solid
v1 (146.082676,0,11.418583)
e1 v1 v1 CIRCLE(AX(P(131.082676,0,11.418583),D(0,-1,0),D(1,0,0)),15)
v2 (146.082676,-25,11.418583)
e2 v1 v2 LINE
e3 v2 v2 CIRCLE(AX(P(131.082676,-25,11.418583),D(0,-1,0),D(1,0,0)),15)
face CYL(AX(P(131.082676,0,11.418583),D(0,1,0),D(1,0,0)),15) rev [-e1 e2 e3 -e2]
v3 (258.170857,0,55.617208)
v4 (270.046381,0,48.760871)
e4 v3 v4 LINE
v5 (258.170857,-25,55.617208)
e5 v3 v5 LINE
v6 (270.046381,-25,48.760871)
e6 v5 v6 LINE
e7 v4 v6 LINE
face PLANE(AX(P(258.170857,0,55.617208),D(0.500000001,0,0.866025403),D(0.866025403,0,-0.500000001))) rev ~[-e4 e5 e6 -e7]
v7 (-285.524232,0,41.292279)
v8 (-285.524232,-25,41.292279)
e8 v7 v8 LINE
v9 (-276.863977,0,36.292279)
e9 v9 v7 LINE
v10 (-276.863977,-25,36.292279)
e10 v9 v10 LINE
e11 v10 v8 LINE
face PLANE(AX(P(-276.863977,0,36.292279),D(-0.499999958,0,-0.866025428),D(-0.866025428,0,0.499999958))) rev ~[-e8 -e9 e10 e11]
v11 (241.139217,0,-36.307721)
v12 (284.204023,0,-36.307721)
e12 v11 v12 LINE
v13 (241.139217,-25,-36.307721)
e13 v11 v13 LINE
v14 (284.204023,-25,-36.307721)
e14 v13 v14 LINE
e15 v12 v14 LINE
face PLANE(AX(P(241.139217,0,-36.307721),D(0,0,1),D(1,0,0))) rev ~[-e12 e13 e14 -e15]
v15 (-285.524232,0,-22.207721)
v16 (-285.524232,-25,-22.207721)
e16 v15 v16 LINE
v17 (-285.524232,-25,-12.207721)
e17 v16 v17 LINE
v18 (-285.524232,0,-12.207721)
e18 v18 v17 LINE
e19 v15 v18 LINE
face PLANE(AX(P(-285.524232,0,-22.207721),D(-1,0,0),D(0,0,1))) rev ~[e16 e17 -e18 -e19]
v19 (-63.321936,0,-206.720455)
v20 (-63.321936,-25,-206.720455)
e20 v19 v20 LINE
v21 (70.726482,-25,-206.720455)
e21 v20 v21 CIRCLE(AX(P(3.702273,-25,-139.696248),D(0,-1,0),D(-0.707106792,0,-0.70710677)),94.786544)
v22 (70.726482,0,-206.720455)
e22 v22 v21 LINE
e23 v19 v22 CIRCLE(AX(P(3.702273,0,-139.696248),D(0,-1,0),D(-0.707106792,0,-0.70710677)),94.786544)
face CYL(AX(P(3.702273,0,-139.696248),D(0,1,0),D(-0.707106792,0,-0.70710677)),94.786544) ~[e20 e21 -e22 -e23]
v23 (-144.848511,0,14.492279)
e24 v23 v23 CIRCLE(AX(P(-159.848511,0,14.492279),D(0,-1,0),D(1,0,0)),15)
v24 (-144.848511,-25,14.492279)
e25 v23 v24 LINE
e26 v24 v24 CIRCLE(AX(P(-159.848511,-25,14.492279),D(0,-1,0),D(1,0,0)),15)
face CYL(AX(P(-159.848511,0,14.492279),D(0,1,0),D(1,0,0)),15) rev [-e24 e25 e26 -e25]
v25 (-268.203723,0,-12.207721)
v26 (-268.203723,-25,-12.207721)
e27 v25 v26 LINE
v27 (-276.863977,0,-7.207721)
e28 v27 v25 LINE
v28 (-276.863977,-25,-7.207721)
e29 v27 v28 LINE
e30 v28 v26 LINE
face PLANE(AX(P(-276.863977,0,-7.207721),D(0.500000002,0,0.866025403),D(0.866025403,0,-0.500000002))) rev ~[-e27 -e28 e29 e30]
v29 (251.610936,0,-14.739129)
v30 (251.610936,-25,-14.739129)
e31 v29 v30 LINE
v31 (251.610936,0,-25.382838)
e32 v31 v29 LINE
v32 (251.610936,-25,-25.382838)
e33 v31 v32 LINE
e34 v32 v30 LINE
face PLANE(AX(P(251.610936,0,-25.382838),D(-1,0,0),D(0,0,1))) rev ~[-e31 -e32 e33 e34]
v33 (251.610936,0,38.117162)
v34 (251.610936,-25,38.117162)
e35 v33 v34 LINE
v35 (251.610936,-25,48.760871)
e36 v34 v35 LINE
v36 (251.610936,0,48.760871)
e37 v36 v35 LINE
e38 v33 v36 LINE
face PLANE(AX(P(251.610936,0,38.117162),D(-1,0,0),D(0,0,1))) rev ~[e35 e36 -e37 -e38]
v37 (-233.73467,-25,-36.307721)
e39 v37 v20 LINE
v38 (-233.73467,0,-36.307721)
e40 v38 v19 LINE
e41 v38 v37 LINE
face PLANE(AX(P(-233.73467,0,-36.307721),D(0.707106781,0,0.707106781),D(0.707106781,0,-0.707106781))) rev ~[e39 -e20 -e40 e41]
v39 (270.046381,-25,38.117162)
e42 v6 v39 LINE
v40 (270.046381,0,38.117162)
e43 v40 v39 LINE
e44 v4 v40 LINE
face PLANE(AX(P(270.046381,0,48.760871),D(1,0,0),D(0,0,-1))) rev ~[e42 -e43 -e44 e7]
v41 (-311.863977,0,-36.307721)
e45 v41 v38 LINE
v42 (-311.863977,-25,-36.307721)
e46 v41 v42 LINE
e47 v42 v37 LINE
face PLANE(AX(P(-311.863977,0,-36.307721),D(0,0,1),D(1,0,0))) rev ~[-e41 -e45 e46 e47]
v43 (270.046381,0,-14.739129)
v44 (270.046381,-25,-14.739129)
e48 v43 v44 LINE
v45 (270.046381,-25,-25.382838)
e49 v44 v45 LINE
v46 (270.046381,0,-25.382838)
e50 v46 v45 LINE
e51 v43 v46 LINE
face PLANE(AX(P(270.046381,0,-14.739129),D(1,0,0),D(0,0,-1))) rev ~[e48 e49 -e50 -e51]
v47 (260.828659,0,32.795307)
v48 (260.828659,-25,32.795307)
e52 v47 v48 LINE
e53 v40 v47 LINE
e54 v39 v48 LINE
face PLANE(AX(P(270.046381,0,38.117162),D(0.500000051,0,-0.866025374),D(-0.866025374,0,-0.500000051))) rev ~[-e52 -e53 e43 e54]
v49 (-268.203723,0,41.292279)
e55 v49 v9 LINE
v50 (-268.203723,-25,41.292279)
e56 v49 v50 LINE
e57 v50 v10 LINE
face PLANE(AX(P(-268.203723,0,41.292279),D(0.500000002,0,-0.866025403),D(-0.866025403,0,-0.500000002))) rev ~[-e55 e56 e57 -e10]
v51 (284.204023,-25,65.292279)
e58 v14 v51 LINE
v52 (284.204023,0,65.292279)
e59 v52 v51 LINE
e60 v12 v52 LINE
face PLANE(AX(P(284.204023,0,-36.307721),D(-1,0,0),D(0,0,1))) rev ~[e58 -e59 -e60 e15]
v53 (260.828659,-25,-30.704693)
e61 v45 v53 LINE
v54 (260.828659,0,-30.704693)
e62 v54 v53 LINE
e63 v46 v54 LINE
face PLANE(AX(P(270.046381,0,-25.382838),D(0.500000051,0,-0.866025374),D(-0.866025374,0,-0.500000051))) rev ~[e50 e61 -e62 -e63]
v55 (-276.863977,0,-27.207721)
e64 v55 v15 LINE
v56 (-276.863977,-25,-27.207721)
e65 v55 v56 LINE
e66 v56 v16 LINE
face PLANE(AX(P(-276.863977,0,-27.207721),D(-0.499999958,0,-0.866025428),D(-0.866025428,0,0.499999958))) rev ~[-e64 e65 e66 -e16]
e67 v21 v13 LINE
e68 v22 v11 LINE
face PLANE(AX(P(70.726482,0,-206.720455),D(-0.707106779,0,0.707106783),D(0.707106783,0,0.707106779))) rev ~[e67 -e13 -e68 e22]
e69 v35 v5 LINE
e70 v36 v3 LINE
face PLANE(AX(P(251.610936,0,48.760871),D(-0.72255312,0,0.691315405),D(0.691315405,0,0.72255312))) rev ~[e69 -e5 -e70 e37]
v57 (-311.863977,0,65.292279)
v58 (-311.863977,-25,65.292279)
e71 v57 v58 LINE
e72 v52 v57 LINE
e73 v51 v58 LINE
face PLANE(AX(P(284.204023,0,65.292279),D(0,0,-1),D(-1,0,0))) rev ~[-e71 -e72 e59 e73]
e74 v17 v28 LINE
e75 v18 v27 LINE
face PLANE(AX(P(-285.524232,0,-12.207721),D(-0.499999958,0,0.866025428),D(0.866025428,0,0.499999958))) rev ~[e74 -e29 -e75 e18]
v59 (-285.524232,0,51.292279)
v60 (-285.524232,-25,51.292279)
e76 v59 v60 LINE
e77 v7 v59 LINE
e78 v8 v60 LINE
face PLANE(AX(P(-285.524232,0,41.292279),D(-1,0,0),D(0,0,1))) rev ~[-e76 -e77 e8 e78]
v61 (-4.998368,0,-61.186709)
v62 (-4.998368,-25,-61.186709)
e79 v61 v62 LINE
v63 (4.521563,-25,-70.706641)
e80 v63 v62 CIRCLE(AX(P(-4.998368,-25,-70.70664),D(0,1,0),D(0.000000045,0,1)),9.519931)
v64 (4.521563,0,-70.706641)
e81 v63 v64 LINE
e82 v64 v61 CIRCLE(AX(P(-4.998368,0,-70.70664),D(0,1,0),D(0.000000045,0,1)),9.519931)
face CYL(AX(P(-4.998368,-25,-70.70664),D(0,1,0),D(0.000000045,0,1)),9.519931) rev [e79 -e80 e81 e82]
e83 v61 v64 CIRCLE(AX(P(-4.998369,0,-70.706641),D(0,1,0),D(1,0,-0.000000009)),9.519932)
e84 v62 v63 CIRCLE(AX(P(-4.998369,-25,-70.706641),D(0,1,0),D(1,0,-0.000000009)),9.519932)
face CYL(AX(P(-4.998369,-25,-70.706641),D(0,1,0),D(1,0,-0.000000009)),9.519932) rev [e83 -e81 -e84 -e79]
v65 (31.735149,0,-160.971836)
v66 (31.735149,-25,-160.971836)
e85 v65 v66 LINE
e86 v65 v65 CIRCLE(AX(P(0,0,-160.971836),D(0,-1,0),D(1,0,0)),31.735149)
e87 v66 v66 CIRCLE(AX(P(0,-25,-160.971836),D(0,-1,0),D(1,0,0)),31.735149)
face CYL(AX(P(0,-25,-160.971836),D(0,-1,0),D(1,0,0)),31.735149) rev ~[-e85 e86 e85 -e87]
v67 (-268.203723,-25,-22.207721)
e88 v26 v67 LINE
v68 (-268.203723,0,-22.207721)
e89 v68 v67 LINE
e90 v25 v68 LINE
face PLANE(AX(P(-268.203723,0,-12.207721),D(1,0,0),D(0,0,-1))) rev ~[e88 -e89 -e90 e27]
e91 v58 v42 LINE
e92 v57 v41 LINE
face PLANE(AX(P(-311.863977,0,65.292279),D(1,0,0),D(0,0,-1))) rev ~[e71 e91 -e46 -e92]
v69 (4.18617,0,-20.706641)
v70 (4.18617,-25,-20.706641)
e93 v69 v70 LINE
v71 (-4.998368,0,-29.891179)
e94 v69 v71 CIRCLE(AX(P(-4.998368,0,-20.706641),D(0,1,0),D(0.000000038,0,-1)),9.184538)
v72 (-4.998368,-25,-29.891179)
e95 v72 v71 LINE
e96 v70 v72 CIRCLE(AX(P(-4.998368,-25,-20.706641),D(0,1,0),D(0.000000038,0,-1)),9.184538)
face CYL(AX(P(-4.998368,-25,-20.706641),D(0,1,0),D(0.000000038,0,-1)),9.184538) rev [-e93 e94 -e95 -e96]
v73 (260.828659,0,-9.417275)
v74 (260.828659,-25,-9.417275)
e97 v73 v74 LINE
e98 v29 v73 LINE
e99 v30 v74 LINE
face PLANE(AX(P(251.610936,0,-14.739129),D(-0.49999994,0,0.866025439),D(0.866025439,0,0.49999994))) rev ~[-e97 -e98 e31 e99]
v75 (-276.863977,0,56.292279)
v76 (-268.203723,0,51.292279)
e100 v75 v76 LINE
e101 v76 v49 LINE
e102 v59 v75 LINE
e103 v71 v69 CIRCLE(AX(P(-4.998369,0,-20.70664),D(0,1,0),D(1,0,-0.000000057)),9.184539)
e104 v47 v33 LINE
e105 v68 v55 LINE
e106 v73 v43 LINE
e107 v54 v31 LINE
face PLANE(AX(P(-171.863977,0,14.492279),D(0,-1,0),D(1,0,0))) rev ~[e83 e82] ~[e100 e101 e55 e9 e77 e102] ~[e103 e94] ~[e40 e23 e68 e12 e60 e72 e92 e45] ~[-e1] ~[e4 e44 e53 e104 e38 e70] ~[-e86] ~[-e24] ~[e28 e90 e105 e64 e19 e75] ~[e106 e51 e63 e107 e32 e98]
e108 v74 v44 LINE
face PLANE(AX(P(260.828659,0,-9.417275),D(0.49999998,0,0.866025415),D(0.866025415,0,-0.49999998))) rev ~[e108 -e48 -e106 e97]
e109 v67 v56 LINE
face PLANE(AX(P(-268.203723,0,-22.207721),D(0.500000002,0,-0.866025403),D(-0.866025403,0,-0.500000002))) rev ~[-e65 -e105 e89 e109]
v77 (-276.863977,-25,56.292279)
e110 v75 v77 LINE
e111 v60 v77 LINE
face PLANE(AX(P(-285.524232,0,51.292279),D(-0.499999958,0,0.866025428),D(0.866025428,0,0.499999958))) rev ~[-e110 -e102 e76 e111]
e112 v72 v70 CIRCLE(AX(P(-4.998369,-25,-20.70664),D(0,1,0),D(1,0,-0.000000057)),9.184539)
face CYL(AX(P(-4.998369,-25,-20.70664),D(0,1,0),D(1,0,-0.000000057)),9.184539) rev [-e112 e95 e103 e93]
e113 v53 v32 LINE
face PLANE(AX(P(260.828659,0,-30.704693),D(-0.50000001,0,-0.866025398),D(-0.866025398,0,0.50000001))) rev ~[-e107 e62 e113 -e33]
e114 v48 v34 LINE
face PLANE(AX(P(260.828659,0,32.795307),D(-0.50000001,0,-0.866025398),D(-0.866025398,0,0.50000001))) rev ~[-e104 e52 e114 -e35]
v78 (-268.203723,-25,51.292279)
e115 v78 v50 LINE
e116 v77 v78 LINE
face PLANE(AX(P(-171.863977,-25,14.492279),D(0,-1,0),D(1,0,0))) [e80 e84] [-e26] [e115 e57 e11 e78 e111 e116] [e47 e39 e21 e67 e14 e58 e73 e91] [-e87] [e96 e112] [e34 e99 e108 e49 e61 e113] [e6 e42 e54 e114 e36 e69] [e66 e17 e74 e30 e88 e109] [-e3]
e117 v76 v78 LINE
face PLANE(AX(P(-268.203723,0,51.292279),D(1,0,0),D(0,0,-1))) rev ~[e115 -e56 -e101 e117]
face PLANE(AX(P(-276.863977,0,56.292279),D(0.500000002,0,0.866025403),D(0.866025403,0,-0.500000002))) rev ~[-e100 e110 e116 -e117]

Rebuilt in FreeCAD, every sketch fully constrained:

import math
import FreeCAD as App
import Part
import Sketcher

V = App.Vector
Q = App.Units.Quantity


def add_polygon(sketch, points):
    """Adds a closed chain of lines whose ends are joined by coincident constraints."""
    first, n = sketch.GeometryCount, len(points)
    for a, b in zip(points, points[1:] + points[:1]):
        sketch.addGeometry(Part.LineSegment(App.Vector(*a, 0), App.Vector(*b, 0)), False)
    for i in range(n):
        sketch.addConstraint(Sketcher.Constraint("Coincident", first + i, 2, first + (i + 1) % n, 1))

doc = App.newDocument("Part")
body = doc.addObject("PartDesign::Body", "Body")

# Sketch on XZ plane
sketch1 = body.newObject("Sketcher::SketchObject", "Sketch")
sketch1.AttachmentSupport = (doc.getObject("XZ_Plane"), [""])
sketch1.MapMode = "FlatFace"
sketch1.addGeometry(Part.LineSegment(V(-312, 65, 0), V(-312, -36, 0)), False)  # 0
sketch1.addGeometry(Part.LineSegment(V(-312, -36, 0), V(-234, -36, 0)), False)  # 1
sketch1.addGeometry(Part.LineSegment(V(-234, -36, 0), V(-63, -207, 0)), False)  # 2
sketch1.addGeometry(Part.ArcOfCircle(Part.Circle(V(4, -140, 0), V(0, 0, 1), 95), math.radians(-135), math.radians(-45)), False)  # 3
sketch1.addGeometry(Part.LineSegment(V(71, -207, 0), V(241, -36, 0)), False)  # 4
sketch1.addGeometry(Part.LineSegment(V(241, -36, 0), V(284, -36, 0)), False)  # 5
sketch1.addGeometry(Part.LineSegment(V(284, -36, 0), V(284, 65, 0)), False)  # 6
sketch1.addGeometry(Part.LineSegment(V(284, 65, 0), V(-312, 65, 0)), False)  # 7
add_polygon(sketch1, [(-286, -12), (-277, -7), (-268, -12), (-268, -22), (-277, -27), (-286, -22)])  # lines 8-13
add_polygon(sketch1, [(261, -9), (270, -15), (270, -25), (261, -31), (252, -25), (252, -15)])  # lines 14-19
sketch1.addGeometry(Part.Circle(V(131, 11, 0), V(0, 0, 1), 15), False)  # 20
sketch1.addGeometry(Part.Circle(V(-160, 14, 0), V(0, 0, 1), 15), False)  # 21
add_polygon(sketch1, [(-286, 51), (-277, 56), (-268, 51), (-268, 41), (-277, 36), (-286, 41)])  # lines 22-27
add_polygon(sketch1, [(261, 33), (252, 38), (252, 49), (258, 56), (270, 49), (270, 38)])  # lines 28-33
sketch1.addConstraint(Sketcher.Constraint("Coincident", 0, 2, 1, 1))
sketch1.addConstraint(Sketcher.Constraint("Coincident", 1, 2, 2, 1))
sketch1.addConstraint(Sketcher.Constraint("Tangent", 2, 2, 3, 1))
sketch1.addConstraint(Sketcher.Constraint("Tangent", 3, 2, 4, 1))
sketch1.addConstraint(Sketcher.Constraint("Coincident", 4, 2, 5, 1))
sketch1.addConstraint(Sketcher.Constraint("Coincident", 5, 2, 6, 1))
sketch1.addConstraint(Sketcher.Constraint("Coincident", 6, 2, 7, 1))
sketch1.addConstraint(Sketcher.Constraint("Coincident", 7, 2, 0, 1))
sketch1.addConstraint(Sketcher.Constraint("Vertical", 0))
sketch1.addConstraint(Sketcher.Constraint("Horizontal", 1))
sketch1.addConstraint(Sketcher.Constraint("Horizontal", 5))
sketch1.addConstraint(Sketcher.Constraint("Vertical", 6))
sketch1.addConstraint(Sketcher.Constraint("Horizontal", 7))
sketch1.addConstraint(Sketcher.Constraint("Vertical", 10))
sketch1.addConstraint(Sketcher.Constraint("Vertical", 13))
sketch1.addConstraint(Sketcher.Constraint("Vertical", 15))
sketch1.addConstraint(Sketcher.Constraint("Vertical", 18))
sketch1.addConstraint(Sketcher.Constraint("Vertical", 24))
sketch1.addConstraint(Sketcher.Constraint("Vertical", 27))
sketch1.addConstraint(Sketcher.Constraint("Vertical", 29))
sketch1.addConstraint(Sketcher.Constraint("Vertical", 32))
sketch1.addConstraint(Sketcher.Constraint("Equal", 20, 21))
sketch1.addConstraint(Sketcher.Constraint("Perpendicular", 2, 4))
sketch1.addConstraint(Sketcher.Constraint("Parallel", 8, 11))
sketch1.addConstraint(Sketcher.Constraint("Parallel", 9, 12))
sketch1.addConstraint(Sketcher.Constraint("Parallel", 12, 14))
sketch1.addConstraint(Sketcher.Constraint("Parallel", 11, 16))
sketch1.addConstraint(Sketcher.Constraint("Parallel", 14, 17))
sketch1.addConstraint(Sketcher.Constraint("Parallel", 16, 19))
sketch1.addConstraint(Sketcher.Constraint("Parallel", 19, 22))
sketch1.addConstraint(Sketcher.Constraint("Parallel", 17, 23))
sketch1.addConstraint(Sketcher.Constraint("Parallel", 22, 25))
sketch1.addConstraint(Sketcher.Constraint("Parallel", 23, 26))
sketch1.addConstraint(Sketcher.Constraint("Parallel", 26, 28))
sketch1.addConstraint(Sketcher.Constraint("Parallel", 28, 31))
sketch1.addConstraint(Sketcher.Constraint("Parallel", 25, 33))
sketch1.addConstraint(Sketcher.Constraint("Horizontal", 2, 2, 3, 2))
sketch1.addConstraint(Sketcher.Constraint("Horizontal", 1, 2, 4, 2))
sketch1.addConstraint(Sketcher.Constraint("Horizontal", 10, 2, 12, 2))
sketch1.addConstraint(Sketcher.Constraint("Horizontal", 9, 2, 13, 2))
sketch1.addConstraint(Sketcher.Constraint("Horizontal", 15, 2, 17, 2))
sketch1.addConstraint(Sketcher.Constraint("Horizontal", 14, 2, 18, 2))
sketch1.addConstraint(Sketcher.Constraint("Horizontal", 24, 2, 26, 2))
sketch1.addConstraint(Sketcher.Constraint("Horizontal", 23, 2, 27, 2))
sketch1.addConstraint(Sketcher.Constraint("Horizontal", 29, 2, 31, 2))
sketch1.addConstraint(Sketcher.Constraint("Horizontal", 28, 2, 32, 2))
sketch1.addConstraint(Sketcher.Constraint("Vertical", 8, 2, 11, 2))
sketch1.addConstraint(Sketcher.Constraint("Vertical", 11, 2, 22, 2))
sketch1.addConstraint(Sketcher.Constraint("Vertical", 10, 2, 23, 2))
sketch1.addConstraint(Sketcher.Constraint("Vertical", 18, 2, 28, 2))
sketch1.addConstraint(Sketcher.Constraint("Vertical", 15, 2, 31, 2))
sketch1.addConstraint(Sketcher.Constraint("Equal", 13, 24))
sketch1.addConstraint(Sketcher.Constraint("Equal", 18, 29))
sketch1.addConstraint(Sketcher.Constraint("Diameter", 20, Q("30 mm")))
sketch1.addConstraint(Sketcher.Constraint("DistanceY", 10, 2, 10, 1, Q("10 mm")))
sketch1.addConstraint(Sketcher.Constraint("Angle", 8, Q("29.999997 deg")))
sketch1.addConstraint(Sketcher.Constraint("Distance", 2, Q("241 mm")))
sketch1.addConstraint(Sketcher.Constraint("Distance", 8, Q("10.000001 mm")))
sketch1.addConstraint(Sketcher.Constraint("DistanceY", 0, 2, 0, 1, Q("101.6 mm")))
sketch1.addConstraint(Sketcher.Constraint("DistanceX", 0, 2, 8, 2, Q("35 mm")))
sketch1.addConstraint(Sketcher.Constraint("DistanceY", 22, 2, 7, 2, Q("9 mm")))
sketch1.addConstraint(Sketcher.Constraint("DistanceY", 0, 2, 21, 3, Q("50.8 mm")))
sketch1.addConstraint(Sketcher.Constraint("DistanceY", 0, 2, 8, 2, Q("29.1 mm")))
sketch1.addConstraint(Sketcher.Constraint("DistanceY", 17, 2, 28, 2, Q("63.5 mm")))
sketch1.addConstraint(Sketcher.Constraint("DistanceX", 7, 2, 7, 1, Q("596.068 mm")))
sketch1.addConstraint(Sketcher.Constraint("Radius", 3, Q("94.786544 mm")))
sketch1.addConstraint(Sketcher.Constraint("DistanceY", 15, 2, 15, 1, Q("10.643709 mm")))
sketch1.addConstraint(Sketcher.Constraint("DistanceX", 3, 2, 14, 2, Q("199.319899 mm")))
sketch1.addConstraint(Sketcher.Constraint("DistanceY", 33, 2, 30, 2, Q("22.821901 mm")))
sketch1.addConstraint(Sketcher.Constraint("Distance", 14, Q("10.643708 mm")))
sketch1.addConstraint(Sketcher.Constraint("DistanceX", 1, 1, 1, 2, Q("78.129307 mm")))
sketch1.addConstraint(Sketcher.Constraint("DistanceY", 3, 3, -1, 1, Q("139.696248 mm")))
sketch1.addConstraint(Sketcher.Constraint("DistanceX", 21, 3, -1, 1, Q("159.848511 mm")))
sketch1.addConstraint(Sketcher.Constraint("DistanceX", 1, 2, -1, 1, Q("233.73467 mm")))
sketch1.addConstraint(Sketcher.Constraint("DistanceY", 14, 2, -1, 1, Q("14.739129 mm")))
sketch1.addConstraint(Sketcher.Constraint("DistanceY", 3, 3, 20, 3, Q("151.114831 mm")))
sketch1.addConstraint(Sketcher.Constraint("DistanceX", 2, 2, 20, 3, Q("194.404612 mm")))
pad1 = body.newObject("PartDesign::Pad", "Pad")
pad1.Profile = sketch1
pad1.Length = 25

# Sketch on XZ plane
sketch2 = body.newObject("Sketcher::SketchObject", "Sketch001")
sketch2.AttachmentSupport = (doc.getObject("XZ_Plane"), [""])
sketch2.MapMode = "FlatFace"
sketch2.AttachmentOffset = App.Placement(V(0, 0, 25), App.Rotation())
sketch2.addGeometry(Part.ArcOfCircle(Part.Circle(V(-5, -71, 0), V(0, 0, 1), 10), math.radians(0), math.radians(90)), False)
sketch2.addGeometry(Part.ArcOfCircle(Part.Circle(V(-5, -71, 0), V(0, 0, 1), 10), math.radians(90), math.radians(360)), False)
sketch2.addGeometry(Part.ArcOfCircle(Part.Circle(V(-5, -21, 0), V(0, 0, 1), 9), math.radians(-90), math.radians(0)), False)
sketch2.addGeometry(Part.ArcOfCircle(Part.Circle(V(-5, -21, 0), V(0, 0, 1), 9), math.radians(0), math.radians(270)), False)
sketch2.addGeometry(Part.Circle(V(0, -161, 0), V(0, 0, 1), 32), False)
sketch2.addConstraint(Sketcher.Constraint("Tangent", 0, 1, 1, 2))
sketch2.addConstraint(Sketcher.Constraint("Coincident", 1, 1, 0, 2))
sketch2.addConstraint(Sketcher.Constraint("Tangent", 2, 1, 3, 2))
sketch2.addConstraint(Sketcher.Constraint("Coincident", 3, 1, 2, 2))
sketch2.addConstraint(Sketcher.Constraint("PointOnObject", 4, 3, -2))
sketch2.addConstraint(Sketcher.Constraint("Horizontal", 1, 3, 0, 1))
sketch2.addConstraint(Sketcher.Constraint("Horizontal", 2, 3, 3, 1))
sketch2.addConstraint(Sketcher.Constraint("Vertical", 1, 3, 2, 3))
sketch2.addConstraint(Sketcher.Constraint("Vertical", 3, 3, 1, 1))
sketch2.addConstraint(Sketcher.Constraint("Vertical", 1, 1, 2, 1))
sketch2.addConstraint(Sketcher.Constraint("DistanceY", 1, 3, 2, 3, Q("50 mm")))
sketch2.addConstraint(Sketcher.Constraint("Radius", 0, Q("9.519932 mm")))
sketch2.addConstraint(Sketcher.Constraint("Radius", 2, Q("9.184538 mm")))
sketch2.addConstraint(Sketcher.Constraint("Diameter", 4, Q("63.470298 mm")))
sketch2.addConstraint(Sketcher.Constraint("DistanceX", 0, 3, -1, 1, Q("4.998369 mm")))
sketch2.addConstraint(Sketcher.Constraint("DistanceY", 0, 3, -1, 1, Q("70.706641 mm")))
sketch2.addConstraint(Sketcher.Constraint("DistanceY", 4, 3, -1, 1, Q("160.971836 mm")))
pocket1 = body.newObject("PartDesign::Pocket", "Pocket")
pocket1.Profile = sketch2
pocket1.Length = 83
pocket1.Midplane = True

doc.recompute()
